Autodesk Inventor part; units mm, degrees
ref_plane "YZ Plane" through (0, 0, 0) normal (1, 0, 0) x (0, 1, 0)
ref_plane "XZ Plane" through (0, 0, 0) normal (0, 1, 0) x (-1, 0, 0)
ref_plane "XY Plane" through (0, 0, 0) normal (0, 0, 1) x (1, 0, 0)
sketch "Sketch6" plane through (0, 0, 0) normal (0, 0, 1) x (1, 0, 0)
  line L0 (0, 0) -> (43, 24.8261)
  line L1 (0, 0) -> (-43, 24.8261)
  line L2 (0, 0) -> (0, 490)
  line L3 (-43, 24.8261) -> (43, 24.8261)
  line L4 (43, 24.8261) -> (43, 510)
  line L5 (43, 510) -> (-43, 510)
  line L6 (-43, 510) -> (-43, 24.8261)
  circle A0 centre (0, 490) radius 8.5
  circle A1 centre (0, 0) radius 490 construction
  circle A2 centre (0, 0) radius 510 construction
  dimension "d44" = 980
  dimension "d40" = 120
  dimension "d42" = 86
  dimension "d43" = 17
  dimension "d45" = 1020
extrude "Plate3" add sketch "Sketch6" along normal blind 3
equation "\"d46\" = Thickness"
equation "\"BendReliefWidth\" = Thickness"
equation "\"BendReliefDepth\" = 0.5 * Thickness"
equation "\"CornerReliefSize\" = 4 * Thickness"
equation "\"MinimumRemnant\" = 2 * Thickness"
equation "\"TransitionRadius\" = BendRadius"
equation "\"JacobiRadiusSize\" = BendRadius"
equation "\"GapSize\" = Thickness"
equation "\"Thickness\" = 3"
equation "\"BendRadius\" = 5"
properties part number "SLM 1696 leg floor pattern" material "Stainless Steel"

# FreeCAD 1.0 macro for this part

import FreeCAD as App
import Part
import Sketcher
Q = App.Units.Quantity


def add_polygon(sketch, points):
    """Adds a closed chain of lines whose ends are joined by coincident constraints."""
    first, n = sketch.GeometryCount, len(points)
    for a, b in zip(points, points[1:] + points[:1]):
        sketch.addGeometry(Part.LineSegment(App.Vector(*a, 0), App.Vector(*b, 0)), False)
    for i in range(n):
        sketch.addConstraint(Sketcher.Constraint("Coincident", first + i, 2, first + (i + 1) % n, 1))

doc = App.newDocument("Part")
body = doc.addObject("PartDesign::Body", "Body")

# Sketch on XY plane
sketch1 = body.newObject("Sketcher::SketchObject", "Sketch")
sketch1.AttachmentSupport = (doc.getObject("XY_Plane"), [""])
sketch1.MapMode = "FlatFace"
add_polygon(sketch1, [(0, 0), (43, 25), (43, 510), (-43, 510), (-43, 25)])  # lines 0-4
sketch1.addGeometry(Part.Circle(App.Vector(0, 490, 0), App.Vector(0, 0, 1), 8), False)  # 5
sketch1.addConstraint(Sketcher.Constraint("Vertical", 1))
sketch1.addConstraint(Sketcher.Constraint("Horizontal", 2))
sketch1.addConstraint(Sketcher.Constraint("Vertical", 3))
sketch1.addConstraint(Sketcher.Constraint("Coincident", 4, 2, -1, 1))
sketch1.addConstraint(Sketcher.Constraint("Symmetric", 0, 2, 3, 2, -2))
sketch1.addConstraint(Sketcher.Constraint("PointOnObject", 5, 3, -2))
sketch1.addConstraint(Sketcher.Constraint("Diameter", 5, 17.0))
sketch1.addConstraint(Sketcher.Constraint("DistanceX", 2, 2, 2, 1, 86.0))
sketch1.addConstraint(Sketcher.Constraint("Angle", 0, Q("30 deg")))
sketch1.addConstraint(Sketcher.Constraint("DistanceY", -1, 1, 5, 3, 490.0))
sketch1.addConstraint(Sketcher.Constraint("DistanceY", -1, 1, 1, 2, 510.0))
pad1 = body.newObject("PartDesign::Pad", "Pad")
pad1.Profile = sketch1
pad1.Length = 3

doc.recompute()
